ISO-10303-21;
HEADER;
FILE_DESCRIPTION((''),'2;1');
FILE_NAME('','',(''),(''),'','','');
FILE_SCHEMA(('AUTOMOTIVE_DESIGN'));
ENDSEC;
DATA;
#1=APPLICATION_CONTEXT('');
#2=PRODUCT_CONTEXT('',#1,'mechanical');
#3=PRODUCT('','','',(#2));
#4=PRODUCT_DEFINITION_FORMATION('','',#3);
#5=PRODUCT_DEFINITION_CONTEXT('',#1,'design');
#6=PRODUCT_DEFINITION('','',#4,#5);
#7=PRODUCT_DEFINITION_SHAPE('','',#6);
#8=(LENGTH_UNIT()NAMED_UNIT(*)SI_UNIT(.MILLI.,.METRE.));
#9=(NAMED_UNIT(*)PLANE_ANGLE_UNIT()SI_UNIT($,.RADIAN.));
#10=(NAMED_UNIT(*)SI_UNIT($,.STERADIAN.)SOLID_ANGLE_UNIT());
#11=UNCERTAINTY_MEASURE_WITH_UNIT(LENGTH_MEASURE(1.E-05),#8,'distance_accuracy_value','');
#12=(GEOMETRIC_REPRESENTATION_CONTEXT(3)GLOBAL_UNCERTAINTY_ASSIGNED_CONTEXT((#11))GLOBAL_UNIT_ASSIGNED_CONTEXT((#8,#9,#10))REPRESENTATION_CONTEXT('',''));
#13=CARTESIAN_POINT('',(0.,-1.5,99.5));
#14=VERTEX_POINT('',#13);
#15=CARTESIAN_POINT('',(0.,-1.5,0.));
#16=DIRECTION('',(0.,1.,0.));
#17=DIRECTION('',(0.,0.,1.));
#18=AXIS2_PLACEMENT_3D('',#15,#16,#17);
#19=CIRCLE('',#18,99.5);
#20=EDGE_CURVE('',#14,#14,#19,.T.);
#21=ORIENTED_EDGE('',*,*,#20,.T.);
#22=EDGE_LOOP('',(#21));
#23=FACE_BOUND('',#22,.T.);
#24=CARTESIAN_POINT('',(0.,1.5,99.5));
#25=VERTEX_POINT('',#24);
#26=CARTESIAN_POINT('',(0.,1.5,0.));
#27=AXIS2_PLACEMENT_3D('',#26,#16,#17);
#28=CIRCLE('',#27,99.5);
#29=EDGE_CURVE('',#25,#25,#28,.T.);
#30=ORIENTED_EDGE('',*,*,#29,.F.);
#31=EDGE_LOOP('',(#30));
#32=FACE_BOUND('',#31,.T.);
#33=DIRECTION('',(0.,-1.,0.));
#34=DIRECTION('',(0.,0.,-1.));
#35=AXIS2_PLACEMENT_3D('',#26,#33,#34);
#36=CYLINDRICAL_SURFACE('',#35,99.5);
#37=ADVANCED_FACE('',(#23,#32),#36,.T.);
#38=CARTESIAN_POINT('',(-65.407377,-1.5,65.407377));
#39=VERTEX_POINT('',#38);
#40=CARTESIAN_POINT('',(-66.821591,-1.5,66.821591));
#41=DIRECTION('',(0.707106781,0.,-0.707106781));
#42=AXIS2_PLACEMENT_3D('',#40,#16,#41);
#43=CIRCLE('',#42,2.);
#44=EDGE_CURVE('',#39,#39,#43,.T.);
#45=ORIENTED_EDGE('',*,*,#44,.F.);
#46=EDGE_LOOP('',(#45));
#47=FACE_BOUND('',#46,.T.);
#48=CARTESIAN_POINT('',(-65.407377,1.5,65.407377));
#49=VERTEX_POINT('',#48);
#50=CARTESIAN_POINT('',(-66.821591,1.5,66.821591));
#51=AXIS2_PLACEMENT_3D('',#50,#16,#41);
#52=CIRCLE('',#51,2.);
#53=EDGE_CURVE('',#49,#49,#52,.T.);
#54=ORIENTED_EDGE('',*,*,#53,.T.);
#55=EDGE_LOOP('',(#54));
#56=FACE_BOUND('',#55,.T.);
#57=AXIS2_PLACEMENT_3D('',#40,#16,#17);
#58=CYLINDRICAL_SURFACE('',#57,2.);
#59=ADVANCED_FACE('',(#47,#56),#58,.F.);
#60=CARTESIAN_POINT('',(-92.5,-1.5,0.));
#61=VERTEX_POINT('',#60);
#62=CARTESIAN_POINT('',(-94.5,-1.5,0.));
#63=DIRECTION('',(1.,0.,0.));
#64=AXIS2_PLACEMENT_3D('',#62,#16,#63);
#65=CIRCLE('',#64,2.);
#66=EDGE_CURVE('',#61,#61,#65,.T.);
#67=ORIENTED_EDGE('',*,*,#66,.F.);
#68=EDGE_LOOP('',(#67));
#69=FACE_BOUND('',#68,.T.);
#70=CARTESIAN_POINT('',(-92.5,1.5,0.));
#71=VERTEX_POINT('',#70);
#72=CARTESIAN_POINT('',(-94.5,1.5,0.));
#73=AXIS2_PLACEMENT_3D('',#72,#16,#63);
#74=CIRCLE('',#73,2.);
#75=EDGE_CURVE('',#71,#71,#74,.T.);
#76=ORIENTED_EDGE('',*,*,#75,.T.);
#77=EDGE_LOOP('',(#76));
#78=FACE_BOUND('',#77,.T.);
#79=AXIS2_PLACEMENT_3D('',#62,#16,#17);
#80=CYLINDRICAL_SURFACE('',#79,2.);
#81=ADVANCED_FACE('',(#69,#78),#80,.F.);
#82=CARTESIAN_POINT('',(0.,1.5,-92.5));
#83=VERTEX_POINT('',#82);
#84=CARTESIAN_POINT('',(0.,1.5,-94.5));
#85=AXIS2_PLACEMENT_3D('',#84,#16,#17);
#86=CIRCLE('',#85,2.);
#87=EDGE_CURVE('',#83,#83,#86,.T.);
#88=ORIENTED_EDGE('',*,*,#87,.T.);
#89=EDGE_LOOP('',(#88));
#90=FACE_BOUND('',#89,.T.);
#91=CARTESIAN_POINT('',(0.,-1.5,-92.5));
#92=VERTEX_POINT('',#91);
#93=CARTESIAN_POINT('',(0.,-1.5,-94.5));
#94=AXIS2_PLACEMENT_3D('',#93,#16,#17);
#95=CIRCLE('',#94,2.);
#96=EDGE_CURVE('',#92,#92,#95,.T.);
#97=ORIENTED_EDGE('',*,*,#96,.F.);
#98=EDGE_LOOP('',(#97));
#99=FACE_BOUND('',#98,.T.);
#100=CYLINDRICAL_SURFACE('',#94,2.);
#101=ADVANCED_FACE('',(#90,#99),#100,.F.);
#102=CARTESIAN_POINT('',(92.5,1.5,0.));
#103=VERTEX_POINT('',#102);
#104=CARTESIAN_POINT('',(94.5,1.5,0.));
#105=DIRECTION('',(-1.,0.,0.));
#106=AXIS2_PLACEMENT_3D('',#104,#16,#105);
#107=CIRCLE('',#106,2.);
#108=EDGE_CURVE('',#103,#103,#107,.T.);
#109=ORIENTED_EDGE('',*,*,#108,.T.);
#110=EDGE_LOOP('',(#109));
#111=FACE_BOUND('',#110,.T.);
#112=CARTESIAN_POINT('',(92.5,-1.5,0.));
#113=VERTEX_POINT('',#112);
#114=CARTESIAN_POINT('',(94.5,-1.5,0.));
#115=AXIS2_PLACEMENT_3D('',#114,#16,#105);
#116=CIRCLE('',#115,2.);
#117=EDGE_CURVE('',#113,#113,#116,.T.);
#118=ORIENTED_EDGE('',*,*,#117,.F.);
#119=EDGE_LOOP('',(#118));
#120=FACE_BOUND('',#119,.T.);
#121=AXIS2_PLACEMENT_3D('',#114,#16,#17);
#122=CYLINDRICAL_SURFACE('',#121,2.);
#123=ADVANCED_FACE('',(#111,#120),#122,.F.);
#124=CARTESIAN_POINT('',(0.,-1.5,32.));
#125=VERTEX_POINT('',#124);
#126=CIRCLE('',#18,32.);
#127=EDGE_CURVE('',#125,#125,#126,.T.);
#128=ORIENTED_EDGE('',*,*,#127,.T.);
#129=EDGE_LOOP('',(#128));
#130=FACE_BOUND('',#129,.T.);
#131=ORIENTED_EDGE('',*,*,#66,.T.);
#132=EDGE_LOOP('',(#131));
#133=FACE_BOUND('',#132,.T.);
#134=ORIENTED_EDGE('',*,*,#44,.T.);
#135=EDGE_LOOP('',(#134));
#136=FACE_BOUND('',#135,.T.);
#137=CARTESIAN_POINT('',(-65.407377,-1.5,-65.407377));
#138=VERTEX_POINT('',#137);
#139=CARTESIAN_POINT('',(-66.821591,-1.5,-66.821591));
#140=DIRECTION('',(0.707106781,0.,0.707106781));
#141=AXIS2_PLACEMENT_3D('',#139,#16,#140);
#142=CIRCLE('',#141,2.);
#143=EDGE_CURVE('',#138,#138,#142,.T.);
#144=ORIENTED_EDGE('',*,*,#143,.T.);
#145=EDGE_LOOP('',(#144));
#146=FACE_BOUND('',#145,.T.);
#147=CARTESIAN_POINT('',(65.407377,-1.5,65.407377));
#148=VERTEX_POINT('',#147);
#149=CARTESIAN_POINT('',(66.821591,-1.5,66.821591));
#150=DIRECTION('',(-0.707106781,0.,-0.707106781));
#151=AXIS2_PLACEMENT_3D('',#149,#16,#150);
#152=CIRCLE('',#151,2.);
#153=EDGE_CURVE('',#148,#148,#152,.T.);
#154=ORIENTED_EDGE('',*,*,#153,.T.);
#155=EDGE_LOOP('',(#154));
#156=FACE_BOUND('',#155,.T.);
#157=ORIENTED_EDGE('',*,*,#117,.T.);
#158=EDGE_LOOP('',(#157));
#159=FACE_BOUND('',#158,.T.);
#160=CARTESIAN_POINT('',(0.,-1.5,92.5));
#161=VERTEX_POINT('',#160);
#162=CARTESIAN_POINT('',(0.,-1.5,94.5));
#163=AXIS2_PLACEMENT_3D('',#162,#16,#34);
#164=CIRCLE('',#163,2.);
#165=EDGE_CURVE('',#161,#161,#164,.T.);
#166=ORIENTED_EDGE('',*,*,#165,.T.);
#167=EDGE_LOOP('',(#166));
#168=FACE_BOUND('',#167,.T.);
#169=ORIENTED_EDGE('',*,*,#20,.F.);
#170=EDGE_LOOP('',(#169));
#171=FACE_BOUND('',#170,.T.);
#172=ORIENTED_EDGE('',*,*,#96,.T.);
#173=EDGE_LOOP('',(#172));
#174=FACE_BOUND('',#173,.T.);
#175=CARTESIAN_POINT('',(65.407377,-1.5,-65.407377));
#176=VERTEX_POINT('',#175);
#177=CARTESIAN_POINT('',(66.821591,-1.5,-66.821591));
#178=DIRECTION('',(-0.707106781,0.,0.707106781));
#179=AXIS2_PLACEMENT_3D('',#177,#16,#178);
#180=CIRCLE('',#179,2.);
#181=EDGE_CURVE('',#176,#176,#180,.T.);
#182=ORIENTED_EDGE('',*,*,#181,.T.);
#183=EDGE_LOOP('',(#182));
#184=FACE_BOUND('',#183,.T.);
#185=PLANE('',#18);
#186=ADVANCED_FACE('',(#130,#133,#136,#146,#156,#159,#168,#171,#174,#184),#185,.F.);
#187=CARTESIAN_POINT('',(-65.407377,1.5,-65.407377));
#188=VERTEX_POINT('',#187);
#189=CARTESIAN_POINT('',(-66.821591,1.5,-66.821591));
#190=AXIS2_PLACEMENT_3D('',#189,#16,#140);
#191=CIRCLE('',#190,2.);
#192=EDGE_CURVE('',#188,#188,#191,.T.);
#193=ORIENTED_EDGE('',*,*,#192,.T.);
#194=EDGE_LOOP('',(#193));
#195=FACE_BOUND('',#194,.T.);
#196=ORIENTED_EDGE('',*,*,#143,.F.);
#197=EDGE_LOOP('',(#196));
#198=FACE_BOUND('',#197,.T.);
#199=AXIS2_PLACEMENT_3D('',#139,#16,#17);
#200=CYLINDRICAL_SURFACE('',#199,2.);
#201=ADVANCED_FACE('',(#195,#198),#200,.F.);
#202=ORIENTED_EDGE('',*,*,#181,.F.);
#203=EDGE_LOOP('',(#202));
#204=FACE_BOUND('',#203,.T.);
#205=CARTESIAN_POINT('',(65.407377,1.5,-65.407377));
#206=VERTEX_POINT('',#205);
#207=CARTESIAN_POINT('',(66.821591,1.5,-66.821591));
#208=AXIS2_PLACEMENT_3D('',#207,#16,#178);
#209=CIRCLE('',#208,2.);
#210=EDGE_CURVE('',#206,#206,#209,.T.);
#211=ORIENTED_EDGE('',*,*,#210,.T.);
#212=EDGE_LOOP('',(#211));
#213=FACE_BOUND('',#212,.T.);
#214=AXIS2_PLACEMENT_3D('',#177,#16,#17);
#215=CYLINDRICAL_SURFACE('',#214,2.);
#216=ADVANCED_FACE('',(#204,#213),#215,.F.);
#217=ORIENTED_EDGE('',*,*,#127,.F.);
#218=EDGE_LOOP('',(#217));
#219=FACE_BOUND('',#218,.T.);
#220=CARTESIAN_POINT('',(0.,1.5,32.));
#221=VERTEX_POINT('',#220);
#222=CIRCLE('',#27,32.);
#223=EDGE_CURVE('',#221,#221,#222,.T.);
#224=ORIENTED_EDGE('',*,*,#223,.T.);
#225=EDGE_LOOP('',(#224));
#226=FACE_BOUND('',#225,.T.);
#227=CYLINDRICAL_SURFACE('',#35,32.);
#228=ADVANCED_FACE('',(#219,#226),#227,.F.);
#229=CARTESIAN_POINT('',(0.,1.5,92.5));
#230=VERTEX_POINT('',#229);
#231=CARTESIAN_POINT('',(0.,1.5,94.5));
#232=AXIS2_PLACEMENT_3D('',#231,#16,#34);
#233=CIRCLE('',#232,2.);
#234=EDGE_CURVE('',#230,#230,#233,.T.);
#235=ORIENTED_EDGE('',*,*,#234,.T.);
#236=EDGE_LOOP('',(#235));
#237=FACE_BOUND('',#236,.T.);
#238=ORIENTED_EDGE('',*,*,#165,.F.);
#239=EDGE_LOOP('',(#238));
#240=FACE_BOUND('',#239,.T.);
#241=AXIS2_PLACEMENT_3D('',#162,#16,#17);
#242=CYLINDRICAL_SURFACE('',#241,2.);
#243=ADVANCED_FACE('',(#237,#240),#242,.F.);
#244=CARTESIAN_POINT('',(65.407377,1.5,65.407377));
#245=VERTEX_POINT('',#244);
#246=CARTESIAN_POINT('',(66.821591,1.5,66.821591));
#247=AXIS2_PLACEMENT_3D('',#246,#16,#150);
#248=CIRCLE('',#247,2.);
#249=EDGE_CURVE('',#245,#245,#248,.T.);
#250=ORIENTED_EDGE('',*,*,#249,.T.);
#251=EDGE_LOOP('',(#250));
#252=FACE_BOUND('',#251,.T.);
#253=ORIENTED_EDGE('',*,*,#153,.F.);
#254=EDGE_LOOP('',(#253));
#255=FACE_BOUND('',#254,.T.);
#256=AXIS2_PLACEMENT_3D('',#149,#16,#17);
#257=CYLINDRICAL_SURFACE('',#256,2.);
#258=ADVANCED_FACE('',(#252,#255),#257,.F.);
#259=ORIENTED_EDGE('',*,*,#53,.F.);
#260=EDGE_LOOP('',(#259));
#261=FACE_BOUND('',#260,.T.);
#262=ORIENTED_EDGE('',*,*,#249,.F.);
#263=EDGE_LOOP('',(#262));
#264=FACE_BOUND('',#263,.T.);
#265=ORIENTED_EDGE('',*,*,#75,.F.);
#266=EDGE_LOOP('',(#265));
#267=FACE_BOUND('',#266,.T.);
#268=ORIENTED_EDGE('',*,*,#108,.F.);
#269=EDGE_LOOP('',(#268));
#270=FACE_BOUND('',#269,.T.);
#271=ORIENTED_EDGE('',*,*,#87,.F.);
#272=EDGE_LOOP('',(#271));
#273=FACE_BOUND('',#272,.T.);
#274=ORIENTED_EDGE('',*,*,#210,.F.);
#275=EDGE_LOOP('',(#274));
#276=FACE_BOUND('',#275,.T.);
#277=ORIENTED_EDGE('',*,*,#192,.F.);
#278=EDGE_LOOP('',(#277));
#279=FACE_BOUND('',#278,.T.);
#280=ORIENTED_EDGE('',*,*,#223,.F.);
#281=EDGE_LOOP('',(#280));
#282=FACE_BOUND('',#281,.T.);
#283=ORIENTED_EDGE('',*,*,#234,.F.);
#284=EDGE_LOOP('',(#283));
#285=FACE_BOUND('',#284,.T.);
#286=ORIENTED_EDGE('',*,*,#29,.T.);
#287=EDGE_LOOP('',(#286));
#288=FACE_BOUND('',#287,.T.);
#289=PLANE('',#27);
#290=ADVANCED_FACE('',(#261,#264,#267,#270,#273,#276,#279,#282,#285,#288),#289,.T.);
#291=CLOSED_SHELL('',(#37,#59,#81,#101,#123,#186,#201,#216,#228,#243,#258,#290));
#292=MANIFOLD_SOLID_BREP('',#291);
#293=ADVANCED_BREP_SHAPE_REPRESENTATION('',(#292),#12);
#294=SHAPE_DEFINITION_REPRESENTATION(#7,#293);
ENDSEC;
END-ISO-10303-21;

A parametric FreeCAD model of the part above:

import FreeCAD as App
import Part
import Sketcher

doc = App.newDocument("Part")
body = doc.addObject("PartDesign::Body", "Body")

sketch1 = body.newObject("Sketcher::SketchObject", "Sketch")
sketch1.AttachmentSupport = (doc.getObject("XZ_Plane"), [""])
sketch1.MapMode = "FlatFace"
sketch1.addGeometry([
    Part.Circle(App.Vector(0, 0, 0), App.Vector(0, 0, 1), 100),
    Part.Circle(App.Vector(0, 0, 0), App.Vector(0, 0, 1), 32),
], False)
sketch1.addConstraint([
    Sketcher.Constraint("Coincident", 0, 3, -1, 1),
    Sketcher.Constraint("Coincident", 1, 3, -1, 1),
    Sketcher.Constraint("Diameter", 0, 199.0),
    Sketcher.Constraint("Diameter", 1, 64.0),
])
pad1 = body.newObject("PartDesign::Pad", "Pad")
pad1.Profile = sketch1
pad1.Length = 3
pad1.Midplane = True

sketch2 = body.newObject("Sketcher::SketchObject", "Sketch001")
sketch2.AttachmentSupport = (doc.getObject("XZ_Plane"), [""])
sketch2.MapMode = "FlatFace"
sketch2.AttachmentOffset = App.Placement(App.Vector(0, 0, -1.5), App.Rotation())
sketch2.addGeometry(Part.Circle(App.Vector(0, -94.5, 0), App.Vector(0, 0, 1), 2), False)
sketch2.addConstraint([
    Sketcher.Constraint("PointOnObject", 0, 3, -2),
    Sketcher.Constraint("Diameter", 0, 4.0),
    Sketcher.Constraint("DistanceY", 0, 3, -1, 1, 94.5),
])
pocket1 = body.newObject("PartDesign::Pocket", "Pocket")
pocket1.Profile = sketch2
pocket1.Type = "ThroughAll"
pocket1.Reversed = True
doc.recompute()

polarpattern = body.newObject("PartDesign::PolarPattern", "PolarPattern")
polarpattern.Originals = [pocket1]
polarpattern.Axis = (doc.getObject("Y_Axis"), [""])
polarpattern.Angle = 360
polarpattern.Occurrences = 8
body.Tip = polarpattern

doc.recompute()
